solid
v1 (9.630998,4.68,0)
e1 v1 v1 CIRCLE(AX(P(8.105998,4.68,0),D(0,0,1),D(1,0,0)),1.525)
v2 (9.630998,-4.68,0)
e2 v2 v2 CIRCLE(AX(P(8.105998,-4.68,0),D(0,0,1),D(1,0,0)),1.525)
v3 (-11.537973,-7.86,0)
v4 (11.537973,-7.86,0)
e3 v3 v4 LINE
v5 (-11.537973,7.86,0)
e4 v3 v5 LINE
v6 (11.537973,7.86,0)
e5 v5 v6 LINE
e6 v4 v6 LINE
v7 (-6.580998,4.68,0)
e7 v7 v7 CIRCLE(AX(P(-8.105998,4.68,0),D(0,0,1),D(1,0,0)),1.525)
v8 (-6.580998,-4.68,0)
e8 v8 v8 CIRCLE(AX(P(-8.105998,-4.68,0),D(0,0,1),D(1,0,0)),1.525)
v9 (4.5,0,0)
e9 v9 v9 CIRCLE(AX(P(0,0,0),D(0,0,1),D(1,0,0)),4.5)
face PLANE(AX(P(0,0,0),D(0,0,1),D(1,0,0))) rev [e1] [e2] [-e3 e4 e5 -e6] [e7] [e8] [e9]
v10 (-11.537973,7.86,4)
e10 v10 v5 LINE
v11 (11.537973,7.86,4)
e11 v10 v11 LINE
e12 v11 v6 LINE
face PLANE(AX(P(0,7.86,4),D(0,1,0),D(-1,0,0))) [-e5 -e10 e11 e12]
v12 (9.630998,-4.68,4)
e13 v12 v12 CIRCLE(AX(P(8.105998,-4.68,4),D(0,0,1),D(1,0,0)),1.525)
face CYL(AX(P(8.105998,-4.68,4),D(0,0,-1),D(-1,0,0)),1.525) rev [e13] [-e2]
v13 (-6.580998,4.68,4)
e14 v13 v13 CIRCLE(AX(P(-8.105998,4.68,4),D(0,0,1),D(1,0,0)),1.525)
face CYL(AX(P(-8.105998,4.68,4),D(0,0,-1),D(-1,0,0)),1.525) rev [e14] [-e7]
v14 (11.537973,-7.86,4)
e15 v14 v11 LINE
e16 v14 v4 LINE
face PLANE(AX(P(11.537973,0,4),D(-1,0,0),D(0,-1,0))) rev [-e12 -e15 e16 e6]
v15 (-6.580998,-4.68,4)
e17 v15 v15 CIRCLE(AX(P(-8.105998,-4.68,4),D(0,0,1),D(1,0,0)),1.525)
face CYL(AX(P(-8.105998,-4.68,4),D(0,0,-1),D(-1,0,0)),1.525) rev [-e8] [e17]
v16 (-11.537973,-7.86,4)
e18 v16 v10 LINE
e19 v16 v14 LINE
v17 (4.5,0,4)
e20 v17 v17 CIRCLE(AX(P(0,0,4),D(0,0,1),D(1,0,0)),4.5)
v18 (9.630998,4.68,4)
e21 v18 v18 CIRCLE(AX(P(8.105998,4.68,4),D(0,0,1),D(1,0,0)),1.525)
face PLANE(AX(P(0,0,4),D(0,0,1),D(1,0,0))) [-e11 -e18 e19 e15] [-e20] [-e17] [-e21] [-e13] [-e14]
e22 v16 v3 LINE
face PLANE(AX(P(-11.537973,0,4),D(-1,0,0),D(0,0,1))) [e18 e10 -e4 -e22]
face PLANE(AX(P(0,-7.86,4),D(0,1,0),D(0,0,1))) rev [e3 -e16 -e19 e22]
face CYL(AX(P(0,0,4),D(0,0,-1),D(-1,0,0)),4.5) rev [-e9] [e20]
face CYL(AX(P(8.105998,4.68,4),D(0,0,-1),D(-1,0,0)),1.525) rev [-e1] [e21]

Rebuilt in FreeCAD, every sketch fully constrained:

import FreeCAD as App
import Part
import Sketcher
Q = App.Units.Quantity

doc = App.newDocument("Part")
params = doc.addObject("Spreadsheet::Sheet", "Params")
for row, (alias, value) in enumerate([
    ("sketch1_diameter", "9 mm"),
    ("sketch1_diameter2", "3.05 mm"),
    ("sketch1_height", "15.72 mm"),
    ("pad1_length", "4 mm"),
], start=1):
    params.set(f"A{row}", alias)
    params.set(f"B{row}", "=" + value)
    params.setAlias(f"B{row}", alias)

body = doc.addObject("PartDesign::Body", "Body")

sketch1 = doc.addObject("Sketcher::SketchObject", "Sketch")
body.addObject(sketch1)
sketch1.AttachmentSupport = (doc.XY_Plane, [""])
sketch1.MapMode = "FlatFace"
sketch1.addGeometry(Part.LineSegment(App.Vector(-11.537973, 7.86, 0), App.Vector(-11.537973, -7.86, 0)), False)
sketch1.addGeometry(Part.LineSegment(App.Vector(-11.537973, -7.86, 0), App.Vector(11.537973, -7.86, 0)), False)
sketch1.addGeometry(Part.LineSegment(App.Vector(11.537973, -7.86, 0), App.Vector(11.537973, 7.86, 0)), False)
sketch1.addGeometry(Part.LineSegment(App.Vector(11.537973, 7.86, 0), App.Vector(-11.537973, 7.86, 0)), False)
sketch1.addGeometry(Part.Circle(App.Vector(-8.105998, -4.68, 0), App.Vector(0, 0, 1), 1.525), False)
sketch1.addGeometry(Part.Circle(App.Vector(8.105998, -4.68, 0), App.Vector(0, 0, 1), 1.525), False)
sketch1.addGeometry(Part.Circle(App.Vector(-8.105998, 4.68, 0), App.Vector(0, 0, 1), 1.525), False)
sketch1.addGeometry(Part.Circle(App.Vector(0, 0, 0), App.Vector(0, 0, 1), 4.5), False)
sketch1.addGeometry(Part.Circle(App.Vector(8.105998, 4.68, 0), App.Vector(0, 0, 1), 1.525), False)
sketch1.addConstraint(Sketcher.Constraint("Coincident", 0, 2, 1, 1))
sketch1.addConstraint(Sketcher.Constraint("Coincident", 1, 2, 2, 1))
sketch1.addConstraint(Sketcher.Constraint("Coincident", 2, 2, 3, 1))
sketch1.addConstraint(Sketcher.Constraint("Coincident", 3, 2, 0, 1))
sketch1.addConstraint(Sketcher.Constraint("Vertical", 0))
sketch1.addConstraint(Sketcher.Constraint("Horizontal", 1))
sketch1.addConstraint(Sketcher.Constraint("Vertical", 2))
sketch1.addConstraint(Sketcher.Constraint("Horizontal", 3))
sketch1.addConstraint(Sketcher.Constraint("Coincident", 7, 3, -1, 1))
sketch1.addConstraint(Sketcher.Constraint("Equal", 4, 5))
sketch1.addConstraint(Sketcher.Constraint("Equal", 5, 6))
sketch1.addConstraint(Sketcher.Constraint("Equal", 6, 8))
sketch1.addConstraint(Sketcher.Constraint("Symmetric", 5, 3, 6, 3, -1, 1))
sketch1.addConstraint(Sketcher.Constraint("Symmetric", 4, 3, 8, 3, -1, 1))
sketch1.addConstraint(Sketcher.Constraint("Symmetric", 0, 2, 2, 2, -1, 1))
sketch1.addConstraint(Sketcher.Constraint("Symmetric", 4, 3, 5, 3, -2))
sketch1.addConstraint(Sketcher.Constraint("Diameter", 7, Q("9 mm")))
sketch1.addConstraint(Sketcher.Constraint("Diameter", 4, Q("3.05 mm")))
sketch1.addConstraint(Sketcher.Constraint("DistanceY", 0, 2, 0, 1, Q("15.72 mm")))
sketch1.addConstraint(Sketcher.Constraint("DistanceY", 4, 3, -1, 1, Q("4.68 mm")))
sketch1.addConstraint(Sketcher.Constraint("DistanceX", 1, 1, 1, 2, Q("23.075946 mm")))
sketch1.addConstraint(Sketcher.Constraint("DistanceX", 0, 2, 5, 3, Q("19.643971 mm")))
sketch1.setExpression("Constraints[16]", "Params.sketch1_diameter")
sketch1.setExpression("Constraints[17]", "Params.sketch1_diameter2")
sketch1.setExpression("Constraints[18]", "Params.sketch1_height")
pad1 = doc.addObject("PartDesign::Pad", "Pad")
body.addObject(pad1)
pad1.Profile = sketch1
pad1.setExpression("Length", "Params.pad1_length")

doc.recompute()
